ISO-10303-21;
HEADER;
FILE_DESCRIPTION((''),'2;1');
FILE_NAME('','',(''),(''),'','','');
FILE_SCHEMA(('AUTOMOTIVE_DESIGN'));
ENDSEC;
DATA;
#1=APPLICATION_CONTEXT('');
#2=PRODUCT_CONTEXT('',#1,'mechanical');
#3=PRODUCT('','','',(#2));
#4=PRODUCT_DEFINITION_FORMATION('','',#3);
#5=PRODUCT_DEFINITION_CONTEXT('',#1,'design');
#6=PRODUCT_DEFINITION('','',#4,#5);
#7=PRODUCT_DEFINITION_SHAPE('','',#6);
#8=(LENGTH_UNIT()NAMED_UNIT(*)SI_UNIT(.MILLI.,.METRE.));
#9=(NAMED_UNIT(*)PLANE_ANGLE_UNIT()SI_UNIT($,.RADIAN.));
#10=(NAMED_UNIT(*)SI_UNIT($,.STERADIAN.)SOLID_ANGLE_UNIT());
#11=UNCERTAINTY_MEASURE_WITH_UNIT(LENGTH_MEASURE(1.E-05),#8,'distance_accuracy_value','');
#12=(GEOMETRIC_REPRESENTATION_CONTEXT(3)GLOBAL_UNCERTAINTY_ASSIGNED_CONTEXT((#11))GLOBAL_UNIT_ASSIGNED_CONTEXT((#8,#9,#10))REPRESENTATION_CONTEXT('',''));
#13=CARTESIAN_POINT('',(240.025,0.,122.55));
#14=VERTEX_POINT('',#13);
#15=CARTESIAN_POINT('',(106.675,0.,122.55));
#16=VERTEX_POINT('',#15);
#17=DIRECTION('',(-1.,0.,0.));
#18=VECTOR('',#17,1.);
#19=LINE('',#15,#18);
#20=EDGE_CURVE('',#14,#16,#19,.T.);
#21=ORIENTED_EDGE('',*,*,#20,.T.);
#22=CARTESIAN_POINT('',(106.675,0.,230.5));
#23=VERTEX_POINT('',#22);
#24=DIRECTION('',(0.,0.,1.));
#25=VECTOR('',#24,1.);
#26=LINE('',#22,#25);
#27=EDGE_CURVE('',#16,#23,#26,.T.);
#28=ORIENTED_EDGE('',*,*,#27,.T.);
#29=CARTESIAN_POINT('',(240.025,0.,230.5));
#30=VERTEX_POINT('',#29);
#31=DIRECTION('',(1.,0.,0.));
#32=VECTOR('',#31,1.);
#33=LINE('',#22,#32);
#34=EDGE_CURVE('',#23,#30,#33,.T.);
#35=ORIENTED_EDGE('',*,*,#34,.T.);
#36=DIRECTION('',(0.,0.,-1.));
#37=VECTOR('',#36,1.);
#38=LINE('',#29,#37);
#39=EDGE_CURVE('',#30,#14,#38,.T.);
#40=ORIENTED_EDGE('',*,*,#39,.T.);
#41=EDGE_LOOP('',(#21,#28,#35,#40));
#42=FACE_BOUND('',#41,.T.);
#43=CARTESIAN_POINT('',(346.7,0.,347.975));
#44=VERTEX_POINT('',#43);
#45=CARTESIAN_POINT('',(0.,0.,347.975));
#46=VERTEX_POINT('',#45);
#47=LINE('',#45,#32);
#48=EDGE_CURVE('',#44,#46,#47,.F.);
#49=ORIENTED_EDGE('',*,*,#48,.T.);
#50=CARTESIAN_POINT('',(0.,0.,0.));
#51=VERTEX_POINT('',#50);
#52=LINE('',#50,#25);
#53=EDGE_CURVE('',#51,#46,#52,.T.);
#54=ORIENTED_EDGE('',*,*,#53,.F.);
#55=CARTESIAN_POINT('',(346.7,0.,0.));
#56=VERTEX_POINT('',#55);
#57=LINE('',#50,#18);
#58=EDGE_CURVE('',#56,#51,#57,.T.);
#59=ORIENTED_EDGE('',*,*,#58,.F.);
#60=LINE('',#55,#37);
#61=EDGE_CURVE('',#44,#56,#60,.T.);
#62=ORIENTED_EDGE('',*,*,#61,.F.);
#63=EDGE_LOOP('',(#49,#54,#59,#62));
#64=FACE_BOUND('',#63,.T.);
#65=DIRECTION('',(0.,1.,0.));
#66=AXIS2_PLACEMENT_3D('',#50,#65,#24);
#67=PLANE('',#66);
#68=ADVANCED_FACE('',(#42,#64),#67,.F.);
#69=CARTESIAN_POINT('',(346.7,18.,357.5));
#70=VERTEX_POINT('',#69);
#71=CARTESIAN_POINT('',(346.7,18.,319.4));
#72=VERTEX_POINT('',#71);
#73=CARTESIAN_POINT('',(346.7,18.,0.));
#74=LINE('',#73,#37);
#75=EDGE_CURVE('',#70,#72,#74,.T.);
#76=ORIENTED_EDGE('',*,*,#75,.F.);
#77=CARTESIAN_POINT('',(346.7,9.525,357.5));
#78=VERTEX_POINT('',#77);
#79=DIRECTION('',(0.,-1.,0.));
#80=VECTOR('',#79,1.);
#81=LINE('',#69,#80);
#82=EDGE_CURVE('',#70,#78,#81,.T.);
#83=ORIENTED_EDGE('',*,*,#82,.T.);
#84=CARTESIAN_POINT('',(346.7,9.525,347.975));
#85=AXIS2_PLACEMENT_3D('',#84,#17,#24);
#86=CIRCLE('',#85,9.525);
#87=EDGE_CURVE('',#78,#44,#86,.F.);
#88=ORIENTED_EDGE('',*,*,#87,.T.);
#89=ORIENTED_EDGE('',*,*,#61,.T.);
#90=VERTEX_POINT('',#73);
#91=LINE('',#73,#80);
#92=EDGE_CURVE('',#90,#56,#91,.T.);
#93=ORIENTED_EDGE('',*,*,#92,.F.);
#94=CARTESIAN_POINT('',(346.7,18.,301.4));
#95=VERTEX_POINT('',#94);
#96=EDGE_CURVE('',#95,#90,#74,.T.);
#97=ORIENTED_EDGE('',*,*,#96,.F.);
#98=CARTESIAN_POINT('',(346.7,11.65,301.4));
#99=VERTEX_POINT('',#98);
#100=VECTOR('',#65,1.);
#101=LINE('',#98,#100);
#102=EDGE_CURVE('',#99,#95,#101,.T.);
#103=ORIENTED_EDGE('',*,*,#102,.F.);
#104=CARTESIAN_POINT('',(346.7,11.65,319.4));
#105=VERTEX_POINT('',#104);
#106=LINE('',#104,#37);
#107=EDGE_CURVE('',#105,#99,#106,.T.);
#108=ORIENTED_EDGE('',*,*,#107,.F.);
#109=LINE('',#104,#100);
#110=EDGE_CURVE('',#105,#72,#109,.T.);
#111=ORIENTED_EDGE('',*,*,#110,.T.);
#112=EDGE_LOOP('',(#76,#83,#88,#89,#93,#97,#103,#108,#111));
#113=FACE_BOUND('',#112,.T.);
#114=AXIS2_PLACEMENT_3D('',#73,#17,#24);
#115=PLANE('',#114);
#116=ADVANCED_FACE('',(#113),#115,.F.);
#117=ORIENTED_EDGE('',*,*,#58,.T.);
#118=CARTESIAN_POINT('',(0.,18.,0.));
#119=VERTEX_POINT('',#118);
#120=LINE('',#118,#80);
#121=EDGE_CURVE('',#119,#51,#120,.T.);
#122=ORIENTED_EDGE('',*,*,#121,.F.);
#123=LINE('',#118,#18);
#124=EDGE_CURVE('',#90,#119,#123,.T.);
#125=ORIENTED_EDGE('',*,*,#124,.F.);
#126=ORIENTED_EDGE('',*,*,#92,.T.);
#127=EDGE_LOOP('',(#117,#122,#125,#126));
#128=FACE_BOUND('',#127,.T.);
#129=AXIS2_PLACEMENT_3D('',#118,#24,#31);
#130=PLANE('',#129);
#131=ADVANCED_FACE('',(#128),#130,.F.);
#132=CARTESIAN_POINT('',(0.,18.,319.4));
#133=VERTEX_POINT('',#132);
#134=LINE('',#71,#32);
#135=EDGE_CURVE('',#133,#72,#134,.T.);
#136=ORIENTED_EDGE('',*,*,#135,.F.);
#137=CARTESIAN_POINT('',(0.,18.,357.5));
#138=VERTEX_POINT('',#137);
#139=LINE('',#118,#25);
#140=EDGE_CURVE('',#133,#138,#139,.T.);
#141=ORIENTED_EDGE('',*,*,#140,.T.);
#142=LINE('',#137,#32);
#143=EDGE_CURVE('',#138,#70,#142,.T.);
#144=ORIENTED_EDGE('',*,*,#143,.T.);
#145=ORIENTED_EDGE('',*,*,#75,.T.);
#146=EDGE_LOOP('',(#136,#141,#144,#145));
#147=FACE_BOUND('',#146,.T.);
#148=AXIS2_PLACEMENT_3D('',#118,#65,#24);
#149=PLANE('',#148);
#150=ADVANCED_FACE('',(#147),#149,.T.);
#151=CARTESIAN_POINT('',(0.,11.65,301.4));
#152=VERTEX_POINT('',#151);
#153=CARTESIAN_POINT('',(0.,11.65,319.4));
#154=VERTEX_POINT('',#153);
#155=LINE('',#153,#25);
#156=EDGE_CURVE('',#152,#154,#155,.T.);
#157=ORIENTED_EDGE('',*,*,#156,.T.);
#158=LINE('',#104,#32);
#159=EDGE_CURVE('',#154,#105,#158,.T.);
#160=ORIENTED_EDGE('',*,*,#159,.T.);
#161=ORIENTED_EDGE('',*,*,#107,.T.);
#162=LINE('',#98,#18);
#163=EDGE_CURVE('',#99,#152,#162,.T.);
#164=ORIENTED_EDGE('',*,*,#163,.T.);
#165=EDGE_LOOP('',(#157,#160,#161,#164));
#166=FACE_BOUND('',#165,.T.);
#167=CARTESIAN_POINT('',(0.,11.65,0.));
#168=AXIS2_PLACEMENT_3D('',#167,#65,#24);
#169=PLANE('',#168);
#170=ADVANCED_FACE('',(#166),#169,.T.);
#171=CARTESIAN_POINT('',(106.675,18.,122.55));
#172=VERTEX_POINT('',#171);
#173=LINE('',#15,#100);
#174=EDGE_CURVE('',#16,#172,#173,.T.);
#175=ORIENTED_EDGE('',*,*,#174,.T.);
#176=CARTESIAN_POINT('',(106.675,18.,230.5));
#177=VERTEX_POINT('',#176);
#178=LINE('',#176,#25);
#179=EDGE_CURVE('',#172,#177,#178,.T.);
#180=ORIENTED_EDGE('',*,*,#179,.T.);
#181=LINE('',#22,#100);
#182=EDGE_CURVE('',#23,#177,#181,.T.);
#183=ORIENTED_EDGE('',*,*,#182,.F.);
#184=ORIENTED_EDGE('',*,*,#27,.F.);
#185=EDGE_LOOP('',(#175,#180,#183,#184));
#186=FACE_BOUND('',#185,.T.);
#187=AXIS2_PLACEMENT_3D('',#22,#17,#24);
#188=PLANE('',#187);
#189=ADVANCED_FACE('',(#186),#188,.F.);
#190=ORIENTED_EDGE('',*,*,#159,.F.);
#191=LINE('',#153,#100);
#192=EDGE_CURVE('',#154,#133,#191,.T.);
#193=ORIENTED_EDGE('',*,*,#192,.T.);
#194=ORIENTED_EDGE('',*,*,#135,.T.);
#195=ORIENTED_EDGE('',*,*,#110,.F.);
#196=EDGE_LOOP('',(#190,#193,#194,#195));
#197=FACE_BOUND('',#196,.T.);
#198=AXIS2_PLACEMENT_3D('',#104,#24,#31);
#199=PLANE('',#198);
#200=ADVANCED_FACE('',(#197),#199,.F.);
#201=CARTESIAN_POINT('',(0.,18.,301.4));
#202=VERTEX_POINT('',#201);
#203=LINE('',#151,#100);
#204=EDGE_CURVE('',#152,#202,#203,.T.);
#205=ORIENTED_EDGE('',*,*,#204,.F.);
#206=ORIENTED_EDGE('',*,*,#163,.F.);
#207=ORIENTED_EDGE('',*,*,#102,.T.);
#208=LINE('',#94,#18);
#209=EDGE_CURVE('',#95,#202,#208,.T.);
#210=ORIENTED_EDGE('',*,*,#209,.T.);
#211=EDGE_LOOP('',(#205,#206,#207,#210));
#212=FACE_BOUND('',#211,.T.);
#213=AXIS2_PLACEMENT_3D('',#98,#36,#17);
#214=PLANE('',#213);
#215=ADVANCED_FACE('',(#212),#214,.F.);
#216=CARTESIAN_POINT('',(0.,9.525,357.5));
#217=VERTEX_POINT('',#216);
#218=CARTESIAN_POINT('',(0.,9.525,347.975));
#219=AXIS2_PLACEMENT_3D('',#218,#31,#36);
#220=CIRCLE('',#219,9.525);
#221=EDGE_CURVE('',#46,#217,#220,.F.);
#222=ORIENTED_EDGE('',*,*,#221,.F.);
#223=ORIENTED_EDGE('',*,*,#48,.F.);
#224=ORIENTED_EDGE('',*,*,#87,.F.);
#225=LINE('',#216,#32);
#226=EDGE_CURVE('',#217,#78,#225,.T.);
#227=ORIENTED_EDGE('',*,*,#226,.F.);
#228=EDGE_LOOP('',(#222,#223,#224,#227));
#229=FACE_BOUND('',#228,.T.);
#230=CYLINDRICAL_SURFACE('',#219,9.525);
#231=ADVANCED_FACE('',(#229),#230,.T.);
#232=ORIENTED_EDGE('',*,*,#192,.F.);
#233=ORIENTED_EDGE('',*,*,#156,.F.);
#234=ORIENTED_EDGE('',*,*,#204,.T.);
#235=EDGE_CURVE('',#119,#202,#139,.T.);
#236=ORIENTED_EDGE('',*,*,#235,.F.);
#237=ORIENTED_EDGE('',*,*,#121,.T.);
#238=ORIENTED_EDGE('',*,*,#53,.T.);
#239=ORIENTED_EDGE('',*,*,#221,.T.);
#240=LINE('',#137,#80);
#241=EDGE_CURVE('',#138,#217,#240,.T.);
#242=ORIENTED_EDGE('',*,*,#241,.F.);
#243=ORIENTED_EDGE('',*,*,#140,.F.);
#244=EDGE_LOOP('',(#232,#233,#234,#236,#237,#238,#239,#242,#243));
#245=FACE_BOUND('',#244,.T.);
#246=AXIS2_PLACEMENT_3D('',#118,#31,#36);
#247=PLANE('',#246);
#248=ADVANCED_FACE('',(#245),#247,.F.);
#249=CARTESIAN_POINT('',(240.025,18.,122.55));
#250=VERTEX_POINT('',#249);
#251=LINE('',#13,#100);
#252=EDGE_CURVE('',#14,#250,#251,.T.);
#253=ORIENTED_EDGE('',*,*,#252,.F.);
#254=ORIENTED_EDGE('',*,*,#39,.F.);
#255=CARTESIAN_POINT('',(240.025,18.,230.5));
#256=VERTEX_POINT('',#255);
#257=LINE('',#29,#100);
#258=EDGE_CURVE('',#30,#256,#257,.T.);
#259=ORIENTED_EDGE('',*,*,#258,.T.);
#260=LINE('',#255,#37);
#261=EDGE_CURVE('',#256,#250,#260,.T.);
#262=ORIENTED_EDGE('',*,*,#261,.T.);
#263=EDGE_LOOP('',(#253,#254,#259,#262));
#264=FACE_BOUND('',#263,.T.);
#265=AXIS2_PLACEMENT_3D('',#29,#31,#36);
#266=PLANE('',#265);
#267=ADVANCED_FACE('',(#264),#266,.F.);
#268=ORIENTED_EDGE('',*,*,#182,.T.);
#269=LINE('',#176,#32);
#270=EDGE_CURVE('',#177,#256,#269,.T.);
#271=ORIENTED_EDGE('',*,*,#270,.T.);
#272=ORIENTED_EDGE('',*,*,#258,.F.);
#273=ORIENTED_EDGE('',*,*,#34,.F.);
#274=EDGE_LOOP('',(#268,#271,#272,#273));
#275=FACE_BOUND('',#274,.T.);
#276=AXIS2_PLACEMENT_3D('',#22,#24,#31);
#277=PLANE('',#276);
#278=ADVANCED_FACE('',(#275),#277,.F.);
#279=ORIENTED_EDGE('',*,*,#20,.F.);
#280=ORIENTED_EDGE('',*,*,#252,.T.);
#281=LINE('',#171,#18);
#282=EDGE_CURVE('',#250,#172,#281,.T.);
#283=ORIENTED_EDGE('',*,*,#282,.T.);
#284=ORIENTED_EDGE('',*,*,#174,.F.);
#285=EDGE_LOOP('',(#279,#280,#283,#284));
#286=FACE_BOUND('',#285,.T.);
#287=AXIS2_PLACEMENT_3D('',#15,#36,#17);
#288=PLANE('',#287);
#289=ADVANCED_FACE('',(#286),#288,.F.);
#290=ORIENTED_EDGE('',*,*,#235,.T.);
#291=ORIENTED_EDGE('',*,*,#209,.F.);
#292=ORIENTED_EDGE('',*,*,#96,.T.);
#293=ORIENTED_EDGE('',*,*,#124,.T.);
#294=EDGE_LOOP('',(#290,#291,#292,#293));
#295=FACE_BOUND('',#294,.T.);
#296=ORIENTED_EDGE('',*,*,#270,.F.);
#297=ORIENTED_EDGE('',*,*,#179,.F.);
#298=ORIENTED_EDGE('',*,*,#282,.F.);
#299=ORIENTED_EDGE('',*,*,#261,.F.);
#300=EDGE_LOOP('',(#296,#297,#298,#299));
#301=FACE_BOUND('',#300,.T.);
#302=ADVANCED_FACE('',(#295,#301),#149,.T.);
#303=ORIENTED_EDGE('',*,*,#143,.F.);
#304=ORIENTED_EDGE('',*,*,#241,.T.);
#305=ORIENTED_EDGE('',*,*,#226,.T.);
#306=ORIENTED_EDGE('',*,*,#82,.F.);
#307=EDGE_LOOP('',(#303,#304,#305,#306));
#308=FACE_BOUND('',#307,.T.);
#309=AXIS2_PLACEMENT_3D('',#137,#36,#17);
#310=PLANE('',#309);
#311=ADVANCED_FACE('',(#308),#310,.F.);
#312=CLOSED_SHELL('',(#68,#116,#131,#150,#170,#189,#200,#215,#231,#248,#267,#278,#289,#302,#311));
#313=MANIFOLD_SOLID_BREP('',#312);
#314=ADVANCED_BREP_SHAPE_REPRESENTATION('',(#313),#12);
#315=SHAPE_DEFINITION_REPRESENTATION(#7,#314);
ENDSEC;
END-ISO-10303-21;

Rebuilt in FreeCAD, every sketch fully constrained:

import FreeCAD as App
import Part
import Sketcher


def edges_at(feature, points):
    """Names of the edges that pass closest to the given points."""
    edges = feature.Shape.Edges
    near = lambda p: min(range(len(edges)), key=lambda i: edges[i].distToShape(Part.Vertex(*p))[0])
    return sorted({f"Edge{near(p) + 1}" for p in points})

doc = App.newDocument("Part")
body = doc.addObject("PartDesign::Body", "Body")

# Sketch on XZ plane
sketch1 = body.newObject("Sketcher::SketchObject", "Sketch")
sketch1.AttachmentSupport = (doc.getObject("XZ_Plane"), [""])
sketch1.MapMode = "FlatFace"
sketch1.addGeometry(Part.LineSegment(App.Vector(0, 0, 0), App.Vector(0, 358, 0)), False)
sketch1.addGeometry(Part.LineSegment(App.Vector(0, 358, 0), App.Vector(347, 358, 0)), False)
sketch1.addGeometry(Part.LineSegment(App.Vector(347, 358, 0), App.Vector(347, 0, 0)), False)
sketch1.addGeometry(Part.LineSegment(App.Vector(347, 0, 0), App.Vector(0, 0, 0)), False)
sketch1.addConstraint(Sketcher.Constraint("Coincident", 0, 2, 1, 1))
sketch1.addConstraint(Sketcher.Constraint("Coincident", 1, 2, 2, 1))
sketch1.addConstraint(Sketcher.Constraint("Coincident", 2, 2, 3, 1))
sketch1.addConstraint(Sketcher.Constraint("Coincident", 3, 2, 0, 1))
sketch1.addConstraint(Sketcher.Constraint("Vertical", 0))
sketch1.addConstraint(Sketcher.Constraint("Horizontal", 1))
sketch1.addConstraint(Sketcher.Constraint("Vertical", 2))
sketch1.addConstraint(Sketcher.Constraint("Horizontal", 3))
sketch1.addConstraint(Sketcher.Constraint("Coincident", 3, 2, -1, 1))
sketch1.addConstraint(Sketcher.Constraint("DistanceX", 1, 1, 1, 2, 346.7))
sketch1.addConstraint(Sketcher.Constraint("DistanceY", 0, 1, 0, 2, 357.5))
pad1 = body.newObject("PartDesign::Pad", "Pad")
pad1.Profile = sketch1
pad1.Length = 18
pad1.Reversed = True

# Sketch on XZ plane
sketch2 = body.newObject("Sketcher::SketchObject", "Sketch001")
sketch2.AttachmentSupport = (doc.getObject("XZ_Plane"), [""])
sketch2.MapMode = "FlatFace"
sketch2.AttachmentOffset = App.Placement(App.Vector(0, 0, -18), App.Rotation())
sketch2.addGeometry(Part.LineSegment(App.Vector(0, 301, 0), App.Vector(0, 319, 0)), False)
sketch2.addGeometry(Part.LineSegment(App.Vector(0, 319, 0), App.Vector(347, 319, 0)), False)
sketch2.addGeometry(Part.LineSegment(App.Vector(347, 319, 0), App.Vector(347, 301, 0)), False)
sketch2.addGeometry(Part.LineSegment(App.Vector(347, 301, 0), App.Vector(0, 301, 0)), False)
sketch2.addConstraint(Sketcher.Constraint("Coincident", 0, 2, 1, 1))
sketch2.addConstraint(Sketcher.Constraint("Coincident", 1, 2, 2, 1))
sketch2.addConstraint(Sketcher.Constraint("Coincident", 2, 2, 3, 1))
sketch2.addConstraint(Sketcher.Constraint("Coincident", 3, 2, 0, 1))
sketch2.addConstraint(Sketcher.Constraint("Vertical", 0))
sketch2.addConstraint(Sketcher.Constraint("Horizontal", 1))
sketch2.addConstraint(Sketcher.Constraint("Vertical", 2))
sketch2.addConstraint(Sketcher.Constraint("Horizontal", 3))
sketch2.addConstraint(Sketcher.Constraint("PointOnObject", 0, 2, -2))
sketch2.addConstraint(Sketcher.Constraint("DistanceY", 0, 1, 0, 2, 18.0))
sketch2.addConstraint(Sketcher.Constraint("DistanceX", 1, 1, 1, 2, 346.7))
sketch2.addConstraint(Sketcher.Constraint("DistanceY", -1, 1, 0, 2, 319.4))
pocket1 = body.newObject("PartDesign::Pocket", "Pocket")
pocket1.Profile = sketch2
pocket1.Length = 6.35
pocket1.Reversed = True

# Sketch on XZ plane
sketch3 = body.newObject("Sketcher::SketchObject", "Sketch002")
sketch3.AttachmentSupport = (doc.getObject("XZ_Plane"), [""])
sketch3.MapMode = "FlatFace"
sketch3.AttachmentOffset = App.Placement(App.Vector(0, 0, -18), App.Rotation())
sketch3.addGeometry(Part.LineSegment(App.Vector(107, 123, 0), App.Vector(107, 231, 0)), False)
sketch3.addGeometry(Part.LineSegment(App.Vector(107, 231, 0), App.Vector(240, 231, 0)), False)
sketch3.addGeometry(Part.LineSegment(App.Vector(240, 231, 0), App.Vector(240, 123, 0)), False)
sketch3.addGeometry(Part.LineSegment(App.Vector(240, 123, 0), App.Vector(107, 123, 0)), False)
sketch3.addConstraint(Sketcher.Constraint("Coincident", 0, 2, 1, 1))
sketch3.addConstraint(Sketcher.Constraint("Coincident", 1, 2, 2, 1))
sketch3.addConstraint(Sketcher.Constraint("Coincident", 2, 2, 3, 1))
sketch3.addConstraint(Sketcher.Constraint("Coincident", 3, 2, 0, 1))
sketch3.addConstraint(Sketcher.Constraint("Vertical", 0))
sketch3.addConstraint(Sketcher.Constraint("Horizontal", 1))
sketch3.addConstraint(Sketcher.Constraint("Vertical", 2))
sketch3.addConstraint(Sketcher.Constraint("Horizontal", 3))
sketch3.addConstraint(Sketcher.Constraint("DistanceX", 1, 1, 1, 2, 133.35))
sketch3.addConstraint(Sketcher.Constraint("DistanceY", 0, 1, 0, 2, 107.95))
sketch3.addConstraint(Sketcher.Constraint("DistanceY", -1, 1, 0, 2, 230.5))
sketch3.addConstraint(Sketcher.Constraint("DistanceX", -1, 1, 0, 2, 106.675))
pocket2 = body.newObject("PartDesign::Pocket", "Pocket001")
pocket2.Profile = sketch3
pocket2.Type = "ThroughAll"
pocket2.Reversed = True
doc.recompute()

fillet = body.newObject("PartDesign::Fillet", "Fillet")
fillet.Base = (pocket2, edges_at(pocket2, [(173.35, 0, 357.5)]))
fillet.Radius = 9.525

doc.recompute()
